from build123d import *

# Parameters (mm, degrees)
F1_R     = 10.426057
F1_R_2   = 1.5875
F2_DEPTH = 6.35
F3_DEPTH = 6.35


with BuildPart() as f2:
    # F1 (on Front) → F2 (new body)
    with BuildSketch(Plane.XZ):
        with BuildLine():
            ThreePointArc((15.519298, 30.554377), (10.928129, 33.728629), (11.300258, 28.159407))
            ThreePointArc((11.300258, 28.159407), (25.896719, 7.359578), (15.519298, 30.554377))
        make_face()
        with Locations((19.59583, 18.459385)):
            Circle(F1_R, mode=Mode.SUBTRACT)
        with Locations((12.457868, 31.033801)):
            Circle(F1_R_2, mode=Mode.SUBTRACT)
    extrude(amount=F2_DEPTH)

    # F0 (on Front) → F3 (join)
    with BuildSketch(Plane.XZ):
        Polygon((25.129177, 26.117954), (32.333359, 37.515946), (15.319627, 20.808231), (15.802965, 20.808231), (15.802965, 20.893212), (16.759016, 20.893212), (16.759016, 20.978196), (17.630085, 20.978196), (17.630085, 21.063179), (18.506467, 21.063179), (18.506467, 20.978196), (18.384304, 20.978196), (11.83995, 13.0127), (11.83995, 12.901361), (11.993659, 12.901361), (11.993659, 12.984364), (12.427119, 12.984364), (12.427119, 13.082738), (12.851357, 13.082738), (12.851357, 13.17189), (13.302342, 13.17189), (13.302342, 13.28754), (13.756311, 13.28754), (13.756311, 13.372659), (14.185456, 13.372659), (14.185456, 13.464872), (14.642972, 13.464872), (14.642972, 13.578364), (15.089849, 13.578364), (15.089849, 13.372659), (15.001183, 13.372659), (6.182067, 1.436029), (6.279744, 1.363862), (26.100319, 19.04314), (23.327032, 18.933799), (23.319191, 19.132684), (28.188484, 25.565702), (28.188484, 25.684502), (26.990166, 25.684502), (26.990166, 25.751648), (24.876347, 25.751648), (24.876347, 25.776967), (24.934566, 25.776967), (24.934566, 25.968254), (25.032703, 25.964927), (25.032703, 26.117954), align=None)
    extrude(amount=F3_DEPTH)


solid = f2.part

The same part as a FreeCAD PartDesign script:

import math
import FreeCAD as App
import Part
import Sketcher
Q = App.Units.Quantity


def add_polygon(sketch, points):
    """Adds a closed chain of lines whose ends are joined by coincident constraints."""
    first, n = sketch.GeometryCount, len(points)
    for a, b in zip(points, points[1:] + points[:1]):
        sketch.addGeometry(Part.LineSegment(App.Vector(*a, 0), App.Vector(*b, 0)), False)
    for i in range(n):
        sketch.addConstraint(Sketcher.Constraint("Coincident", first + i, 2, first + (i + 1) % n, 1))

doc = App.newDocument("Part")
body = doc.addObject("PartDesign::Body", "Body")

sketch1 = doc.addObject("Sketcher::SketchObject", "Sketch")
body.addObject(sketch1)
sketch1.AttachmentSupport = (doc.XZ_Plane, [""])
sketch1.MapMode = "FlatFace"
sketch1.addGeometry(Part.ArcOfCircle(Part.Circle(App.Vector(12.457868, 31.033801, 0), App.Vector(0, 0, 1), 3.098742), math.radians(-8.900304), math.radians(248.063782)), False)
sketch1.addGeometry(Part.ArcOfCircle(Part.Circle(App.Vector(19.59583, 18.459386, 0), App.Vector(0, 0, 1), 12.7635), math.radians(130.53745), math.radians(468.626028)), False)
sketch1.addGeometry(Part.Circle(App.Vector(19.59583, 18.459385, 0), App.Vector(0, 0, 1), 10.426057), False)
sketch1.addGeometry(Part.Circle(App.Vector(12.457868, 31.033801, 0), App.Vector(0, 0, 1), 1.5875), False)
sketch1.addConstraint(Sketcher.Constraint("Coincident", 0, 1, 1, 2))
sketch1.addConstraint(Sketcher.Constraint("Coincident", 1, 1, 0, 2))
sketch1.addConstraint(Sketcher.Constraint("Coincident", 2, 3, 1, 3))
sketch1.addConstraint(Sketcher.Constraint("Coincident", 3, 3, 0, 3))
sketch1.addConstraint(Sketcher.Constraint("Diameter", 3, Q("0.125 in")))
sketch1.addConstraint(Sketcher.Constraint("Radius", 1, Q("0.5025 in")))
sketch1.addConstraint(Sketcher.Constraint("Radius", 0, 3.098742))
sketch1.addConstraint(Sketcher.Constraint("Diameter", 2, 20.852114))
sketch1.addConstraint(Sketcher.Constraint("DistanceY", -1, 1, 0, 3, 31.033801))
sketch1.addConstraint(Sketcher.Constraint("DistanceX", -1, 1, 0, 3, 12.457868))
sketch1.addConstraint(Sketcher.Constraint("DistanceX", -1, 1, 1, 3, 19.59583))
sketch1.addConstraint(Sketcher.Constraint("DistanceX", 0, 3, 0, 1, 3.06143))
pad1 = doc.addObject("PartDesign::Pad", "Pad")
body.addObject(pad1)
pad1.Profile = sketch1
pad1.Length = Q("0.25 in")

sketch2 = doc.addObject("Sketcher::SketchObject", "Sketch001")
body.addObject(sketch2)
sketch2.AttachmentSupport = (doc.XZ_Plane, [""])
sketch2.MapMode = "FlatFace"
add_polygon(sketch2, [(25.129177, 26.117954), (32.333359, 37.515946), (15.319627, 20.808231), (15.802965, 20.808231), (15.802965, 20.893212), (16.759016, 20.893212), (16.759016, 20.978196), (17.630085, 20.978196), (17.630085, 21.063179), (18.506467, 21.063179), (18.506467, 20.978196), (18.384304, 20.978196), (11.83995, 13.0127), (11.83995, 12.901361), (11.993659, 12.901361), (11.993659, 12.984364), (12.427119, 12.984364), (12.427119, 13.082738), (12.851357, 13.082738), (12.851357, 13.17189), (13.302342, 13.17189), (13.302342, 13.28754), (13.756311, 13.28754), (13.756311, 13.372659), (14.185456, 13.372659), (14.185456, 13.464872), (14.642972, 13.464872), (14.642972, 13.578364), (15.089849, 13.578364), (15.089849, 13.372659), (15.001183, 13.372659), (6.182067, 1.436029), (6.279744, 1.363862), (26.100319, 19.04314), (23.327032, 18.933799), (23.319191, 19.132684), (28.188484, 25.565702), (28.188484, 25.684502), (26.990166, 25.684502), (26.990166, 25.751648), (24.876347, 25.751648), (24.876347, 25.776967), (24.934566, 25.776967), (24.934566, 25.968254), (25.032703, 25.964927), (25.032703, 26.117954)])
sketch2.addConstraint(Sketcher.Constraint("Horizontal", 2))
sketch2.addConstraint(Sketcher.Constraint("Vertical", 3))
sketch2.addConstraint(Sketcher.Constraint("Horizontal", 4))
sketch2.addConstraint(Sketcher.Constraint("Vertical", 5))
sketch2.addConstraint(Sketcher.Constraint("Horizontal", 6))
sketch2.addConstraint(Sketcher.Constraint("Vertical", 7))
sketch2.addConstraint(Sketcher.Constraint("Horizontal", 8))
sketch2.addConstraint(Sketcher.Constraint("Vertical", 9))
sketch2.addConstraint(Sketcher.Constraint("Horizontal", 10))
sketch2.addConstraint(Sketcher.Constraint("Vertical", 12))
sketch2.addConstraint(Sketcher.Constraint("Horizontal", 13))
sketch2.addConstraint(Sketcher.Constraint("Vertical", 14))
sketch2.addConstraint(Sketcher.Constraint("Horizontal", 15))
sketch2.addConstraint(Sketcher.Constraint("Vertical", 16))
sketch2.addConstraint(Sketcher.Constraint("Horizontal", 17))
sketch2.addConstraint(Sketcher.Constraint("Vertical", 18))
sketch2.addConstraint(Sketcher.Constraint("Horizontal", 19))
sketch2.addConstraint(Sketcher.Constraint("Vertical", 20))
sketch2.addConstraint(Sketcher.Constraint("Horizontal", 21))
sketch2.addConstraint(Sketcher.Constraint("Vertical", 22))
sketch2.addConstraint(Sketcher.Constraint("Horizontal", 23))
sketch2.addConstraint(Sketcher.Constraint("Vertical", 24))
sketch2.addConstraint(Sketcher.Constraint("Horizontal", 25))
sketch2.addConstraint(Sketcher.Constraint("Vertical", 26))
sketch2.addConstraint(Sketcher.Constraint("Horizontal", 27))
sketch2.addConstraint(Sketcher.Constraint("Vertical", 28))
sketch2.addConstraint(Sketcher.Constraint("Horizontal", 29))
sketch2.addConstraint(Sketcher.Constraint("Vertical", 36))
sketch2.addConstraint(Sketcher.Constraint("Horizontal", 37))
sketch2.addConstraint(Sketcher.Constraint("Vertical", 38))
sketch2.addConstraint(Sketcher.Constraint("Horizontal", 39))
sketch2.addConstraint(Sketcher.Constraint("Vertical", 40))
sketch2.addConstraint(Sketcher.Constraint("Horizontal", 41))
sketch2.addConstraint(Sketcher.Constraint("Vertical", 42))
sketch2.addConstraint(Sketcher.Constraint("Vertical", 44))
sketch2.addConstraint(Sketcher.Constraint("Horizontal", 45))
sketch2.addConstraint(Sketcher.Constraint("Perpendicular", 33, 34))
sketch2.addConstraint(Sketcher.Constraint("Horizontal", 6, 2, 9, 2))
sketch2.addConstraint(Sketcher.Constraint("Horizontal", 23, 2, 28, 2))
sketch2.addConstraint(Sketcher.Constraint("Equal", 5, 7))
sketch2.addConstraint(Sketcher.Constraint("DistanceY", 36, 1, 36, 2, 0.1188))
sketch2.addConstraint(Sketcher.Constraint("DistanceY", 31, 2, 14, 2, Q("0.4575001 in")))
sketch2.addConstraint(Sketcher.Constraint("DistanceY", 41, 2, 43, 2, Q("0.0074 in")))
sketch2.addConstraint(Sketcher.Constraint("DistanceX", 4, 1, 4, 2, 0.956051))
sketch2.addConstraint(Sketcher.Constraint("DistanceX", 6, 1, 6, 2, 0.871069))
sketch2.addConstraint(Sketcher.Constraint("DistanceX", 8, 1, 8, 2, 0.876382))
sketch2.addConstraint(Sketcher.Constraint("DistanceX", 13, 1, 13, 2, 0.153709))
sketch2.addConstraint(Sketcher.Constraint("DistanceX", 15, 1, 15, 2, 0.43346))
sketch2.addConstraint(Sketcher.Constraint("DistanceX", 17, 1, 17, 2, 0.424238))
sketch2.addConstraint(Sketcher.Constraint("DistanceX", 21, 1, 21, 2, 0.453969))
sketch2.addConstraint(Sketcher.Constraint("DistanceX", 37, 2, 37, 1, 1.198318))
sketch2.addConstraint(Sketcher.Constraint("DistanceX", 39, 2, 39, 1, 2.113819))
sketch2.addConstraint(Sketcher.Constraint("DistanceX", 41, 1, 41, 2, 0.058219))
sketch2.addConstraint(Sketcher.Constraint("DistanceY", 3, 1, 3, 2, 0.084981))
sketch2.addConstraint(Sketcher.Constraint("DistanceY", 12, 2, 12, 1, 0.111339))
sketch2.addConstraint(Sketcher.Constraint("DistanceY", 18, 1, 18, 2, 0.089152))
sketch2.addConstraint(Sketcher.Constraint("DistanceY", 20, 1, 20, 2, 0.11565))
sketch2.addConstraint(Sketcher.Constraint("DistanceY", 22, 1, 22, 2, 0.085119))
sketch2.addConstraint(Sketcher.Constraint("DistanceY", 40, 1, 40, 2, 0.025319))
sketch2.addConstraint(Sketcher.Constraint("DistanceY", -1, 1, 11, 2, 13.0127))
sketch2.addConstraint(Sketcher.Constraint("DistanceY", -1, 1, 33, 2, 18.933799))
sketch2.addConstraint(Sketcher.Constraint("DistanceY", -1, 1, 36, 2, 25.684502))
sketch2.addConstraint(Sketcher.Constraint("DistanceX", 18, 2, 23, 2, 1.334099))
sketch2.addConstraint(Sketcher.Constraint("DistanceY", 31, 2, 12, 2, 11.537499))
sketch2.addConstraint(Sketcher.Constraint("DistanceY", 42, 2, 44, 2, 0.1497))
sketch2.addConstraint(Sketcher.Constraint("Distance", 0, 13.483859))
sketch2.addConstraint(Sketcher.Constraint("Distance", 33, 2.775442))
sketch2.addConstraint(Sketcher.Constraint("Distance", 34, 0.19904))
sketch2.addConstraint(Sketcher.Constraint("Distance", 35, 8.068069))
sketch2.addConstraint(Sketcher.Constraint("DistanceX", 2, 1, 2, 2, 0.483338))
sketch2.addConstraint(Sketcher.Constraint("DistanceX", 10, 2, 10, 1, 0.122163))
sketch2.addConstraint(Sketcher.Constraint("DistanceX", 19, 1, 19, 2, 0.450985))
sketch2.addConstraint(Sketcher.Constraint("DistanceX", 25, 1, 25, 2, 0.457516))
sketch2.addConstraint(Sketcher.Constraint("DistanceX", 27, 1, 27, 2, 0.446877))
sketch2.addConstraint(Sketcher.Constraint("DistanceX", 29, 2, 29, 1, 0.088666))
sketch2.addConstraint(Sketcher.Constraint("DistanceX", 45, 1, 45, 2, 0.096474))
sketch2.addConstraint(Sketcher.Constraint("DistanceY", 5, 1, 5, 2, 0.084984))
sketch2.addConstraint(Sketcher.Constraint("DistanceY", 16, 1, 16, 2, 0.098374))
sketch2.addConstraint(Sketcher.Constraint("DistanceY", 24, 1, 24, 2, 0.092213))
sketch2.addConstraint(Sketcher.Constraint("DistanceY", 26, 1, 26, 2, 0.113492))
sketch2.addConstraint(Sketcher.Constraint("DistanceY", 38, 1, 38, 2, 0.067146))
sketch2.addConstraint(Sketcher.Constraint("DistanceY", 42, 1, 42, 2, 0.191287))
sketch2.addConstraint(Sketcher.Constraint("DistanceX", -1, 1, 0, 2, 32.333359))
sketch2.addConstraint(Sketcher.Constraint("DistanceY", -1, 1, 1, 2, 20.808231))
sketch2.addConstraint(Sketcher.Constraint("DistanceX", -1, 1, 11, 2, 11.83995))
sketch2.addConstraint(Sketcher.Constraint("DistanceY", -1, 1, 30, 2, 1.436029))
sketch2.addConstraint(Sketcher.Constraint("DistanceX", -1, 1, 32, 2, 26.100319))
sketch2.addConstraint(Sketcher.Constraint("DistanceY", -1, 1, 32, 2, 19.04314))
sketch2.addConstraint(Sketcher.Constraint("DistanceY", 5, 2, 0, 2, 16.53775))
sketch2.addConstraint(Sketcher.Constraint("DistanceX", 13, 2, 1, 2, 3.325968))
sketch2.addConstraint(Sketcher.Constraint("DistanceX", 30, 2, 13, 2, 5.811592))
sketch2.addConstraint(Sketcher.Constraint("Distance", 31, 0.121445))
pad2 = doc.addObject("PartDesign::Pad", "Pad001")
body.addObject(pad2)
pad2.Profile = sketch2
pad2.Length = Q("0.25 in")

doc.recompute()
